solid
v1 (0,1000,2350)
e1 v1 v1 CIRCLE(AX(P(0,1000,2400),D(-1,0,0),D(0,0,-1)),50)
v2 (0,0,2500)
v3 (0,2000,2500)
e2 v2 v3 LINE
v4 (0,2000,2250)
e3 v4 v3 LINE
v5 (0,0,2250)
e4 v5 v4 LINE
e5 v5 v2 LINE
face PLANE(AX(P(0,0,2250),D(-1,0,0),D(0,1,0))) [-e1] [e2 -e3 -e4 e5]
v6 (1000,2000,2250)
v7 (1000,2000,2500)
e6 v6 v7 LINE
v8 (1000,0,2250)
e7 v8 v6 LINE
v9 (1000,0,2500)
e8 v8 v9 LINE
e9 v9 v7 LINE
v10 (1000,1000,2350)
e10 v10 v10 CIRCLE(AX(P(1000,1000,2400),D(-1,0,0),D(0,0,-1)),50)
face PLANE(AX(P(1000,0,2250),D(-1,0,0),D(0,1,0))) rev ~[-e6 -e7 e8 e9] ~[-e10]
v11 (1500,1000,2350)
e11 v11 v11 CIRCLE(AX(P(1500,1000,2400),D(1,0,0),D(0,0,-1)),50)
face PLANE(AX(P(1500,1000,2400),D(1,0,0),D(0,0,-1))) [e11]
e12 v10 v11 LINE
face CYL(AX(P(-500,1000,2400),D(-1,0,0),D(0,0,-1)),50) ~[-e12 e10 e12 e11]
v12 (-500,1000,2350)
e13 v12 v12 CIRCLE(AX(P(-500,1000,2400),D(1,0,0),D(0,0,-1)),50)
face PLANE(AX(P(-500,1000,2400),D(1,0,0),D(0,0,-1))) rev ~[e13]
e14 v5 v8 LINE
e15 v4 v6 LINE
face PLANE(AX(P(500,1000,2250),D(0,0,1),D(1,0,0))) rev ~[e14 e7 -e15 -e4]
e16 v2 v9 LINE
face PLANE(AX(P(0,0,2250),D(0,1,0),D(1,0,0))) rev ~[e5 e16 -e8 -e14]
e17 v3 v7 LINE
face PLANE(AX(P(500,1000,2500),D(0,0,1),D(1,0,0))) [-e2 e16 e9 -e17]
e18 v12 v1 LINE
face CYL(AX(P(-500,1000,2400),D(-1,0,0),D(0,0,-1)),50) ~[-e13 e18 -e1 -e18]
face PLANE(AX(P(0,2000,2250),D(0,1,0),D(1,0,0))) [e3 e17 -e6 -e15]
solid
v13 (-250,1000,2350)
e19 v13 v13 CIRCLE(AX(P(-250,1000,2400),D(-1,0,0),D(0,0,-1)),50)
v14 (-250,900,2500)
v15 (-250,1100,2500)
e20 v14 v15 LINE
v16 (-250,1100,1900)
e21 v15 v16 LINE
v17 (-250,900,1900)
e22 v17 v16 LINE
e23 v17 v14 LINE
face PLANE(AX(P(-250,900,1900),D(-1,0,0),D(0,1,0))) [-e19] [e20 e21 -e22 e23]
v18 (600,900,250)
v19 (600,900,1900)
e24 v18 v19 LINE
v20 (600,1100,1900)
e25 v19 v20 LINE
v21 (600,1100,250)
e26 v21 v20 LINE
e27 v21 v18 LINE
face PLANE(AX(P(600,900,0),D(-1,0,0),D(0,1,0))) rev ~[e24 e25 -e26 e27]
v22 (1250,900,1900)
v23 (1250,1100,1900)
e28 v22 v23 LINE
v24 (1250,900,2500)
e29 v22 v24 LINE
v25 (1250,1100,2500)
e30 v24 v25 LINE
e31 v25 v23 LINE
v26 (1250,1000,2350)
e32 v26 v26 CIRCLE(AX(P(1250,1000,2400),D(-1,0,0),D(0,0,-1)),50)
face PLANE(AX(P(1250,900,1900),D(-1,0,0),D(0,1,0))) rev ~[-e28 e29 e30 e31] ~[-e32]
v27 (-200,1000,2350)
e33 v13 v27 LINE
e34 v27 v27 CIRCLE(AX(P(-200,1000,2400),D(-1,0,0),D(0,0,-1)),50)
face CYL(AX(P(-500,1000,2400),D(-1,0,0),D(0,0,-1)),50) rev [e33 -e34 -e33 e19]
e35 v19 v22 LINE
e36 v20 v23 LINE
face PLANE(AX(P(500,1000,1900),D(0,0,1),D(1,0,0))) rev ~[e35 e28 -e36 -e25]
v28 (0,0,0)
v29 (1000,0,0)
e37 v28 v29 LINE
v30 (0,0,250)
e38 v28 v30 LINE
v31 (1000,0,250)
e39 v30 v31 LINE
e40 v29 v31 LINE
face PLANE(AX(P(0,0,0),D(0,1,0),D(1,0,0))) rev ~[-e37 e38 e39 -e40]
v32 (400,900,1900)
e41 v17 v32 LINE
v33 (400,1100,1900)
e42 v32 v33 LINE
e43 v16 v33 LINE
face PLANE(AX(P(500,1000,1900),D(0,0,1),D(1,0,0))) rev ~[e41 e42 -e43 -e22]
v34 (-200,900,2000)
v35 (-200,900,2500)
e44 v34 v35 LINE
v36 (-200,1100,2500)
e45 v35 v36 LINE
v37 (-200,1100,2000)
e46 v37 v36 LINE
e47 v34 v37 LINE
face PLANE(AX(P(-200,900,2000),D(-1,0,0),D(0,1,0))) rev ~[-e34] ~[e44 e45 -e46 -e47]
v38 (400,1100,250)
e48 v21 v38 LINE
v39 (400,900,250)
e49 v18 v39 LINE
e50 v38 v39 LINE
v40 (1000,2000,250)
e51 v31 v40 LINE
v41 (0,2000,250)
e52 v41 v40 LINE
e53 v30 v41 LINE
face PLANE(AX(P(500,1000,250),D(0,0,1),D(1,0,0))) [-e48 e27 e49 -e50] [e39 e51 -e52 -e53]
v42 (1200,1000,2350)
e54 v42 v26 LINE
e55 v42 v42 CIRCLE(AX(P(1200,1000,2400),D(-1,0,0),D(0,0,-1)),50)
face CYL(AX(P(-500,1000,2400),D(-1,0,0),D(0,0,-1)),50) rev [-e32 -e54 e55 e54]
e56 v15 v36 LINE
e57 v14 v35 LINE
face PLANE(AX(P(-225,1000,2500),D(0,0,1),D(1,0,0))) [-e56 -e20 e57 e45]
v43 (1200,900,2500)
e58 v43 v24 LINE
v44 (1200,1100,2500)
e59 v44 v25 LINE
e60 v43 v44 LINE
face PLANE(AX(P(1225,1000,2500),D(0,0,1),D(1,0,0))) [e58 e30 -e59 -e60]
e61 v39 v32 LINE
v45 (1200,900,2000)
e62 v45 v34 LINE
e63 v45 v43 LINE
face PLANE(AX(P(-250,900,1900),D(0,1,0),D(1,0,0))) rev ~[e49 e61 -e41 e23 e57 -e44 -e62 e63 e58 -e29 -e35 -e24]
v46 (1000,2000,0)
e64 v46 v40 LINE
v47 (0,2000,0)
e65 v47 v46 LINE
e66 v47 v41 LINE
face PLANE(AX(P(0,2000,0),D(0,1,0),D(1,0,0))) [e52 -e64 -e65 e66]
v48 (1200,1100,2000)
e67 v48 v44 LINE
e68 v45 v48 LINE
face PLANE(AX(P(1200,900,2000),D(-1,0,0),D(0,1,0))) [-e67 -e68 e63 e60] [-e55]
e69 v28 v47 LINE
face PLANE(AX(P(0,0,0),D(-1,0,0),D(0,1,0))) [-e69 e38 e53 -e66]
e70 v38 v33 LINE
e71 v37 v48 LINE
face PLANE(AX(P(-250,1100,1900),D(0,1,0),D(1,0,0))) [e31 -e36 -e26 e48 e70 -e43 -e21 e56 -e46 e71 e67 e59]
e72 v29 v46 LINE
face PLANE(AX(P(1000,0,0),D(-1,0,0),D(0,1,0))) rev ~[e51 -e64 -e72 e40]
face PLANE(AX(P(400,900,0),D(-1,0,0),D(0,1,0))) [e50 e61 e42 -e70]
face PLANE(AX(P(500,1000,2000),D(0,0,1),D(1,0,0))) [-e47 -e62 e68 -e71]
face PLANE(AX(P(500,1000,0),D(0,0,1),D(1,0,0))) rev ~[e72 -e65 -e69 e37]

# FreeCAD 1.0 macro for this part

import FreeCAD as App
import Part
import Sketcher
Q = App.Units.Quantity

doc = App.newDocument("Part")
body = doc.addObject("PartDesign::Body", "Body")

sketch1 = doc.addObject("Sketcher::SketchObject", "Sketch")
body.addObject(sketch1)
sketch1.AttachmentSupport = (doc.YZ_Plane, [""])
sketch1.MapMode = "FlatFace"
sketch1.AttachmentOffset = App.Placement(App.Vector(0, 0, -500), App.Rotation())
sketch1.addGeometry(Part.Circle(App.Vector(1000, 2400, 0), App.Vector(0, 0, 1), 50), False)
sketch1.addConstraint(Sketcher.Constraint("Diameter", 0, Q("100 mm")))
sketch1.addConstraint(Sketcher.Constraint("DistanceX", -1, 1, 0, 3, Q("1000 mm")))
sketch1.addConstraint(Sketcher.Constraint("DistanceY", -1, 1, 0, 3, Q("2400 mm")))
pad1 = doc.addObject("PartDesign::Pad", "Pad")
body.addObject(pad1)
pad1.Profile = sketch1
pad1.Length = 2000
body2 = doc.addObject("PartDesign::Body", "Body001")

sketch2 = doc.addObject("Sketcher::SketchObject", "Sketch001")
body2.addObject(sketch2)
sketch2.AttachmentSupport = (doc.getObject("XY_Plane001"), [""])
sketch2.MapMode = "FlatFace"
sketch2.AttachmentOffset = App.Placement(App.Vector(0, 0, 2000), App.Rotation())
sketch2.addGeometry(Part.LineSegment(App.Vector(-250, 1100, 0), App.Vector(-250, 900, 0)), False)
sketch2.addGeometry(Part.LineSegment(App.Vector(-250, 900, 0), App.Vector(-200, 900, 0)), False)
sketch2.addGeometry(Part.LineSegment(App.Vector(-200, 900, 0), App.Vector(-200, 1100, 0)), False)
sketch2.addGeometry(Part.LineSegment(App.Vector(-200, 1100, 0), App.Vector(-250, 1100, 0)), False)
sketch2.addConstraint(Sketcher.Constraint("Coincident", 0, 2, 1, 1))
sketch2.addConstraint(Sketcher.Constraint("Coincident", 1, 2, 2, 1))
sketch2.addConstraint(Sketcher.Constraint("Coincident", 2, 2, 3, 1))
sketch2.addConstraint(Sketcher.Constraint("Coincident", 3, 2, 0, 1))
sketch2.addConstraint(Sketcher.Constraint("Vertical", 0))
sketch2.addConstraint(Sketcher.Constraint("Horizontal", 1))
sketch2.addConstraint(Sketcher.Constraint("Vertical", 2))
sketch2.addConstraint(Sketcher.Constraint("Horizontal", 3))
sketch2.addConstraint(Sketcher.Constraint("DistanceX", 1, 1, 1, 2, Q("50 mm")))
sketch2.addConstraint(Sketcher.Constraint("DistanceY", 0, 2, 0, 1, Q("200 mm")))
sketch2.addConstraint(Sketcher.Constraint("DistanceX", 0, 2, -1, 1, Q("250 mm")))
sketch2.addConstraint(Sketcher.Constraint("DistanceY", -1, 1, 0, 2, Q("900 mm")))
pad2 = doc.addObject("PartDesign::Pad", "Pad001")
body2.addObject(pad2)
pad2.Profile = sketch2
pad2.Length = 500
body3 = doc.addObject("PartDesign::Body", "Body002")

sketch3 = doc.addObject("Sketcher::SketchObject", "Sketch002")
body3.addObject(sketch3)
sketch3.AttachmentSupport = (doc.getObject("XY_Plane002"), [""])
sketch3.MapMode = "FlatFace"
sketch3.AttachmentOffset = App.Placement(App.Vector(0, 0, 1900), App.Rotation())
sketch3.addGeometry(Part.LineSegment(App.Vector(-250, 1100, 0), App.Vector(-250, 900, 0)), False)
sketch3.addGeometry(Part.LineSegment(App.Vector(-250, 900, 0), App.Vector(1250, 900, 0)), False)
sketch3.addGeometry(Part.LineSegment(App.Vector(1250, 900, 0), App.Vector(1250, 1100, 0)), False)
sketch3.addGeometry(Part.LineSegment(App.Vector(1250, 1100, 0), App.Vector(-250, 1100, 0)), False)
sketch3.addConstraint(Sketcher.Constraint("Coincident", 0, 2, 1, 1))
sketch3.addConstraint(Sketcher.Constraint("Coincident", 1, 2, 2, 1))
sketch3.addConstraint(Sketcher.Constraint("Coincident", 2, 2, 3, 1))
sketch3.addConstraint(Sketcher.Constraint("Coincident", 3, 2, 0, 1))
sketch3.addConstraint(Sketcher.Constraint("Vertical", 0))
sketch3.addConstraint(Sketcher.Constraint("Horizontal", 1))
sketch3.addConstraint(Sketcher.Constraint("Vertical", 2))
sketch3.addConstraint(Sketcher.Constraint("Horizontal", 3))
sketch3.addConstraint(Sketcher.Constraint("DistanceX", 1, 1, 1, 2, Q("1500 mm")))
sketch3.addConstraint(Sketcher.Constraint("DistanceY", 0, 2, 0, 1, Q("200 mm")))
sketch3.addConstraint(Sketcher.Constraint("DistanceX", 0, 2, -1, 1, Q("250 mm")))
sketch3.addConstraint(Sketcher.Constraint("DistanceY", -1, 1, 0, 2, Q("900 mm")))
pad3 = doc.addObject("PartDesign::Pad", "Pad002")
body3.addObject(pad3)
pad3.Profile = sketch3
pad3.Length = 100
body4 = doc.addObject("PartDesign::Body", "Body003")

sketch4 = doc.addObject("Sketcher::SketchObject", "Sketch003")
body4.addObject(sketch4)
sketch4.AttachmentSupport = (doc.getObject("XY_Plane003"), [""])
sketch4.MapMode = "FlatFace"
sketch4.addGeometry(Part.LineSegment(App.Vector(400, 1100, 0), App.Vector(400, 900, 0)), False)
sketch4.addGeometry(Part.LineSegment(App.Vector(400, 900, 0), App.Vector(600, 900, 0)), False)
sketch4.addGeometry(Part.LineSegment(App.Vector(600, 900, 0), App.Vector(600, 1100, 0)), False)
sketch4.addGeometry(Part.LineSegment(App.Vector(600, 1100, 0), App.Vector(400, 1100, 0)), False)
sketch4.addConstraint(Sketcher.Constraint("Coincident", 0, 2, 1, 1))
sketch4.addConstraint(Sketcher.Constraint("Coincident", 1, 2, 2, 1))
sketch4.addConstraint(Sketcher.Constraint("Coincident", 2, 2, 3, 1))
sketch4.addConstraint(Sketcher.Constraint("Coincident", 3, 2, 0, 1))
sketch4.addConstraint(Sketcher.Constraint("Vertical", 0))
sketch4.addConstraint(Sketcher.Constraint("Horizontal", 1))
sketch4.addConstraint(Sketcher.Constraint("Vertical", 2))
sketch4.addConstraint(Sketcher.Constraint("Horizontal", 3))
sketch4.addConstraint(Sketcher.Constraint("Equal", 3, 0))
sketch4.addConstraint(Sketcher.Constraint("DistanceX", 1, 1, 1, 2, Q("200 mm")))
sketch4.addConstraint(Sketcher.Constraint("DistanceX", -1, 1, 0, 2, Q("400 mm")))
sketch4.addConstraint(Sketcher.Constraint("DistanceY", -1, 1, 0, 2, Q("900 mm")))
pad4 = doc.addObject("PartDesign::Pad", "Pad003")
body4.addObject(pad4)
pad4.Profile = sketch4
pad4.Length = 2000
body5 = doc.addObject("PartDesign::Body", "Body004")

sketch5 = doc.addObject("Sketcher::SketchObject", "Sketch004")
body5.addObject(sketch5)
sketch5.AttachmentSupport = (doc.getObject("XY_Plane004"), [""])
sketch5.MapMode = "FlatFace"
sketch5.addGeometry(Part.LineSegment(App.Vector(0, 2000, 0), App.Vector(0, 0, 0)), False)
sketch5.addGeometry(Part.LineSegment(App.Vector(0, 0, 0), App.Vector(1000, 0, 0)), False)
sketch5.addGeometry(Part.LineSegment(App.Vector(1000, 0, 0), App.Vector(1000, 2000, 0)), False)
sketch5.addGeometry(Part.LineSegment(App.Vector(1000, 2000, 0), App.Vector(0, 2000, 0)), False)
sketch5.addConstraint(Sketcher.Constraint("Coincident", 0, 2, 1, 1))
sketch5.addConstraint(Sketcher.Constraint("Coincident", 1, 2, 2, 1))
sketch5.addConstraint(Sketcher.Constraint("Coincident", 2, 2, 3, 1))
sketch5.addConstraint(Sketcher.Constraint("Coincident", 3, 2, 0, 1))
sketch5.addConstraint(Sketcher.Constraint("Vertical", 0))
sketch5.addConstraint(Sketcher.Constraint("Horizontal", 1))
sketch5.addConstraint(Sketcher.Constraint("Vertical", 2))
sketch5.addConstraint(Sketcher.Constraint("Horizontal", 3))
sketch5.addConstraint(Sketcher.Constraint("Coincident", 0, 2, -1, 1))
sketch5.addConstraint(Sketcher.Constraint("DistanceX", 1, 1, 1, 2, Q("1000 mm")))
sketch5.addConstraint(Sketcher.Constraint("DistanceY", 0, 2, 0, 1, Q("2000 mm")))
pad5 = doc.addObject("PartDesign::Pad", "Pad004")
body5.addObject(pad5)
pad5.Profile = sketch5
pad5.Length = 250
doc.recompute()

boolean = doc.addObject("PartDesign::Boolean", "Boolean")
body5.addObject(boolean)
boolean.Type = "Fuse"
boolean.addObjects([body4])
doc.recompute()

boolean2 = doc.addObject("PartDesign::Boolean", "Boolean001")
body5.addObject(boolean2)
boolean2.Type = "Fuse"
boolean2.addObjects([body3])
body6 = doc.addObject("PartDesign::Body", "Body005")
body6.AllowCompound = True

sketch6 = doc.addObject("Sketcher::SketchObject", "Sketch005")
body6.addObject(sketch6)
sketch6.AttachmentSupport = (doc.getObject("XY_Plane005"), [""])
sketch6.MapMode = "FlatFace"
sketch6.AttachmentOffset = App.Placement(App.Vector(0, 0, 2000), App.Rotation())
sketch6.addGeometry(Part.LineSegment(App.Vector(1200, 1100, 0), App.Vector(1200, 900, 0)), False)
sketch6.addGeometry(Part.LineSegment(App.Vector(1200, 900, 0), App.Vector(1250, 900, 0)), False)
sketch6.addGeometry(Part.LineSegment(App.Vector(1250, 900, 0), App.Vector(1250, 1100, 0)), False)
sketch6.addGeometry(Part.LineSegment(App.Vector(1250, 1100, 0), App.Vector(1200, 1100, 0)), False)
sketch6.addConstraint(Sketcher.Constraint("Coincident", 0, 2, 1, 1))
sketch6.addConstraint(Sketcher.Constraint("Coincident", 1, 2, 2, 1))
sketch6.addConstraint(Sketcher.Constraint("Coincident", 2, 2, 3, 1))
sketch6.addConstraint(Sketcher.Constraint("Coincident", 3, 2, 0, 1))
sketch6.addConstraint(Sketcher.Constraint("Vertical", 0))
sketch6.addConstraint(Sketcher.Constraint("Horizontal", 1))
sketch6.addConstraint(Sketcher.Constraint("Vertical", 2))
sketch6.addConstraint(Sketcher.Constraint("Horizontal", 3))
sketch6.addConstraint(Sketcher.Constraint("DistanceX", 1, 1, 1, 2, Q("50 mm")))
sketch6.addConstraint(Sketcher.Constraint("DistanceY", 0, 2, 0, 1, Q("200 mm")))
sketch6.addConstraint(Sketcher.Constraint("DistanceX", -1, 1, 0, 2, Q("1200 mm")))
sketch6.addConstraint(Sketcher.Constraint("DistanceY", -1, 1, 0, 2, Q("900 mm")))
pad6 = doc.addObject("PartDesign::Pad", "Pad005")
body6.addObject(pad6)
pad6.Profile = sketch6
pad6.Length = 500
doc.recompute()

boolean3 = doc.addObject("PartDesign::Boolean", "Boolean002")
body6.addObject(boolean3)
boolean3.Type = "Fuse"
boolean3.addObjects([body2])
doc.recompute()

boolean4 = doc.addObject("PartDesign::Boolean", "Boolean003")
body6.addObject(boolean4)
boolean4.Type = "Fuse"
boolean4.addObjects([body5])
doc.recompute()

boolean5 = doc.addObject("PartDesign::Boolean", "Boolean004")
body6.addObject(boolean5)
boolean5.Type = "Cut"
boolean5.addObjects([body])
body7 = doc.addObject("PartDesign::Body", "Body006")

sketch7 = doc.addObject("Sketcher::SketchObject", "Sketch006")
body7.addObject(sketch7)
sketch7.AttachmentSupport = (doc.getObject("YZ_Plane006"), [""])
sketch7.MapMode = "FlatFace"
sketch7.AttachmentOffset = App.Placement(App.Vector(0, 0, -500), App.Rotation())
sketch7.addGeometry(Part.Circle(App.Vector(1000, 2400, 0), App.Vector(0, 0, 1), 50), False)
sketch7.addConstraint(Sketcher.Constraint("Diameter", 0, Q("100 mm")))
sketch7.addConstraint(Sketcher.Constraint("DistanceX", -1, 1, 0, 3, Q("1000 mm")))
sketch7.addConstraint(Sketcher.Constraint("DistanceY", -1, 1, 0, 3, Q("2400 mm")))
pad7 = doc.addObject("PartDesign::Pad", "Pad006")
body7.addObject(pad7)
pad7.Profile = sketch7
pad7.Length = 2000
body8 = doc.addObject("PartDesign::Body", "Body007")

sketch8 = doc.addObject("Sketcher::SketchObject", "Sketch007")
body8.addObject(sketch8)
sketch8.AttachmentSupport = (doc.getObject("YZ_Plane007"), [""])
sketch8.MapMode = "FlatFace"
sketch8.AttachmentOffset = App.Placement(App.Vector(0, 0, -500), App.Rotation())
sketch8.addGeometry(Part.Circle(App.Vector(1000, 2400, 0), App.Vector(0, 0, 1), 50), False)
sketch8.addConstraint(Sketcher.Constraint("Diameter", 0, Q("100 mm")))
sketch8.addConstraint(Sketcher.Constraint("DistanceX", -1, 1, 0, 3, Q("1000 mm")))
sketch8.addConstraint(Sketcher.Constraint("DistanceY", -1, 1, 0, 3, Q("2400 mm")))
pad8 = doc.addObject("PartDesign::Pad", "Pad007")
body8.addObject(pad8)
pad8.Profile = sketch8
pad8.Length = 2000
body9 = doc.addObject("PartDesign::Body", "Body008")

sketch9 = doc.addObject("Sketcher::SketchObject", "Sketch008")
body9.addObject(sketch9)
sketch9.AttachmentSupport = (doc.getObject("XY_Plane008"), [""])
sketch9.MapMode = "FlatFace"
sketch9.AttachmentOffset = App.Placement(App.Vector(0, 0, 2250), App.Rotation())
sketch9.addGeometry(Part.LineSegment(App.Vector(0, 2000, 0), App.Vector(0, 0, 0)), False)
sketch9.addGeometry(Part.LineSegment(App.Vector(0, 0, 0), App.Vector(1000, 0, 0)), False)
sketch9.addGeometry(Part.LineSegment(App.Vector(1000, 0, 0), App.Vector(1000, 2000, 0)), False)
sketch9.addGeometry(Part.LineSegment(App.Vector(1000, 2000, 0), App.Vector(0, 2000, 0)), False)
sketch9.addConstraint(Sketcher.Constraint("Coincident", 0, 2, 1, 1))
sketch9.addConstraint(Sketcher.Constraint("Coincident", 1, 2, 2, 1))
sketch9.addConstraint(Sketcher.Constraint("Coincident", 2, 2, 3, 1))
sketch9.addConstraint(Sketcher.Constraint("Coincident", 3, 2, 0, 1))
sketch9.addConstraint(Sketcher.Constraint("Vertical", 0))
sketch9.addConstraint(Sketcher.Constraint("Horizontal", 1))
sketch9.addConstraint(Sketcher.Constraint("Vertical", 2))
sketch9.addConstraint(Sketcher.Constraint("Horizontal", 3))
sketch9.addConstraint(Sketcher.Constraint("Coincident", 0, 2, -1, 1))
sketch9.addConstraint(Sketcher.Constraint("DistanceX", 1, 1, 1, 2, Q("1000 mm")))
sketch9.addConstraint(Sketcher.Constraint("DistanceY", 0, 2, 0, 1, Q("2000 mm")))
pad9 = doc.addObject("PartDesign::Pad", "Pad008")
body9.addObject(pad9)
pad9.Profile = sketch9
pad9.Length = 250
doc.recompute()

boolean6 = doc.addObject("PartDesign::Boolean", "Boolean005")
body9.addObject(boolean6)
boolean6.Type = "Cut"
boolean6.addObjects([body8])
doc.recompute()

boolean7 = doc.addObject("PartDesign::Boolean", "Boolean006")
body9.addObject(boolean7)
boolean7.Type = "Fuse"
boolean7.addObjects([body7])

doc.recompute()
